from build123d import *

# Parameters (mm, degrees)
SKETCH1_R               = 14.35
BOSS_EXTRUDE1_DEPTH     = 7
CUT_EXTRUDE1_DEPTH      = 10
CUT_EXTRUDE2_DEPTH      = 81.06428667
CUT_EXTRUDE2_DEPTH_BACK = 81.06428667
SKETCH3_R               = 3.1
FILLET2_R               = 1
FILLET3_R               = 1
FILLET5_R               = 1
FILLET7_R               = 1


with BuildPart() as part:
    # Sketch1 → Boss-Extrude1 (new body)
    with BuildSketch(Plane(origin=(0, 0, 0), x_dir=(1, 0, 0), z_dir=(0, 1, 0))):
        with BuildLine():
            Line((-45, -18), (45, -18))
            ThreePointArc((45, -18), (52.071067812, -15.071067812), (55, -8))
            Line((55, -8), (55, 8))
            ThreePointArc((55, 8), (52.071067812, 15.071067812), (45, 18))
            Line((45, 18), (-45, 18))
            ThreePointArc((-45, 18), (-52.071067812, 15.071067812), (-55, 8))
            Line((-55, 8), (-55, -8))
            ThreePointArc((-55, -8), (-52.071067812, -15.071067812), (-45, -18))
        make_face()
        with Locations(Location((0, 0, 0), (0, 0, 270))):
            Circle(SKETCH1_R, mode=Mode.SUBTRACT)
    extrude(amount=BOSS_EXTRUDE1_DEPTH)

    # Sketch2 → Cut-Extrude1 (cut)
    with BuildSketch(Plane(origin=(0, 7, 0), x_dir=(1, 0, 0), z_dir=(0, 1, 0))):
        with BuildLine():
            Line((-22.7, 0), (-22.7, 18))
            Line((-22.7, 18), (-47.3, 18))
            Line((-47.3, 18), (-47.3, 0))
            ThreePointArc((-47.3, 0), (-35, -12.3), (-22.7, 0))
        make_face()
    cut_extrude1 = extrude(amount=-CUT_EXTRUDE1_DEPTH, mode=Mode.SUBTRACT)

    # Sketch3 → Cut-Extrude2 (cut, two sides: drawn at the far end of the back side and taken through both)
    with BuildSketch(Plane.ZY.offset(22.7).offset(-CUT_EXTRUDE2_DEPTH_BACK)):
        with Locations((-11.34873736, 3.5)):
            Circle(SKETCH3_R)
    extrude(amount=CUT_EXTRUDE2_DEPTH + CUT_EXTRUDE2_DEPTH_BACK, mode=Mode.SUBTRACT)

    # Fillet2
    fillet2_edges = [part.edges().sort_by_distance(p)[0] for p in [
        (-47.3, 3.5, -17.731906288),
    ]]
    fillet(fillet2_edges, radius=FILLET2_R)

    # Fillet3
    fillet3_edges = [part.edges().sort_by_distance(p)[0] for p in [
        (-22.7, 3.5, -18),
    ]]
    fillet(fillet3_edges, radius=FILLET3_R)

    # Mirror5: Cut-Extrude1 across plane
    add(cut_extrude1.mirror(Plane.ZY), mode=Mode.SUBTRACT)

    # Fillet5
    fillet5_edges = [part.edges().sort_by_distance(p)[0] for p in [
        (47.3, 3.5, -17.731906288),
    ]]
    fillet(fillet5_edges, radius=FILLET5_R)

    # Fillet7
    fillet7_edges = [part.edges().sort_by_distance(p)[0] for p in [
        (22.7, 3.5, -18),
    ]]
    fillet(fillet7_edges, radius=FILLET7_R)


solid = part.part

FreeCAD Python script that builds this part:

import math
import FreeCAD as App
import Part
import Sketcher


def edges_at(feature, points):
    """Names of the edges that pass closest to the given points."""
    edges = feature.Shape.Edges
    near = lambda p: min(range(len(edges)), key=lambda i: edges[i].distToShape(Part.Vertex(*p))[0])
    return sorted({f"Edge{near(p) + 1}" for p in points})

doc = App.newDocument("Part")
body = doc.addObject("PartDesign::Body", "Body")

sketch1 = body.newObject("Sketcher::SketchObject", "Sketch")
sketch1.AttachmentSupport = (doc.getObject("XZ_Plane"), [""])
sketch1.MapMode = "FlatFace"
sketch1.addGeometry(Part.LineSegment(App.Vector(-45, 18, 0), App.Vector(45, 18, 0)), False)
sketch1.addGeometry(Part.ArcOfCircle(Part.Circle(App.Vector(45, 8, 0), App.Vector(0, 0, 1), 10), math.radians(0), math.radians(90)), False)
sketch1.addGeometry(Part.LineSegment(App.Vector(55, 8, 0), App.Vector(55, -8, 0)), False)
sketch1.addGeometry(Part.ArcOfCircle(Part.Circle(App.Vector(45, -8, 0), App.Vector(0, 0, 1), 10), math.radians(-90), math.radians(0)), False)
sketch1.addGeometry(Part.LineSegment(App.Vector(45, -18, 0), App.Vector(-45, -18, 0)), False)
sketch1.addGeometry(Part.ArcOfCircle(Part.Circle(App.Vector(-45, -8, 0), App.Vector(0, 0, 1), 10), math.radians(180), math.radians(270)), False)
sketch1.addGeometry(Part.LineSegment(App.Vector(-55, -8, 0), App.Vector(-55, 8, 0)), False)
sketch1.addGeometry(Part.ArcOfCircle(Part.Circle(App.Vector(-45, 8, 0), App.Vector(0, 0, 1), 10), math.radians(90), math.radians(180)), False)
sketch1.addGeometry(Part.Circle(App.Vector(0, 0, 0), App.Vector(0, 0, 1), 14.35), False)
sketch1.addConstraint(Sketcher.Constraint("Tangent", 0, 2, 1, 2))
sketch1.addConstraint(Sketcher.Constraint("Tangent", 1, 1, 2, 1))
sketch1.addConstraint(Sketcher.Constraint("Tangent", 2, 2, 3, 2))
sketch1.addConstraint(Sketcher.Constraint("Tangent", 3, 1, 4, 1))
sketch1.addConstraint(Sketcher.Constraint("Tangent", 4, 2, 5, 2))
sketch1.addConstraint(Sketcher.Constraint("Tangent", 5, 1, 6, 1))
sketch1.addConstraint(Sketcher.Constraint("Tangent", 6, 2, 7, 2))
sketch1.addConstraint(Sketcher.Constraint("Tangent", 7, 1, 0, 1))
sketch1.addConstraint(Sketcher.Constraint("Horizontal", 0))
sketch1.addConstraint(Sketcher.Constraint("Vertical", 2))
sketch1.addConstraint(Sketcher.Constraint("Horizontal", 4))
sketch1.addConstraint(Sketcher.Constraint("Vertical", 6))
sketch1.addConstraint(Sketcher.Constraint("Coincident", 8, 3, -1, 1))
sketch1.addConstraint(Sketcher.Constraint("Equal", 1, 3))
sketch1.addConstraint(Sketcher.Constraint("Equal", 3, 5))
sketch1.addConstraint(Sketcher.Constraint("Equal", 5, 7))
sketch1.addConstraint(Sketcher.Constraint("Symmetric", 1, 3, 5, 3, -1, 1))
sketch1.addConstraint(Sketcher.Constraint("Radius", 1, 10.0))
sketch1.addConstraint(Sketcher.Constraint("Diameter", 8, 28.7))
sketch1.addConstraint(Sketcher.Constraint("DistanceX", 0, 1, 0, 2, 90.0))
sketch1.addConstraint(Sketcher.Constraint("DistanceY", 2, 2, 2, 1, 16.0))
pad1 = body.newObject("PartDesign::Pad", "Pad")
pad1.Profile = sketch1
pad1.Length = 7
pad1.Reversed = True

sketch2 = body.newObject("Sketcher::SketchObject", "Sketch001")
sketch2.AttachmentSupport = (doc.getObject("XZ_Plane"), [""])
sketch2.MapMode = "FlatFace"
sketch2.AttachmentOffset = App.Placement(App.Vector(0, 0, -7), App.Rotation())
sketch2.addGeometry(Part.LineSegment(App.Vector(-22.7, 0, 0), App.Vector(-22.7, -18, 0)), False)
sketch2.addGeometry(Part.LineSegment(App.Vector(-22.7, -18, 0), App.Vector(-47.3, -18, 0)), False)
sketch2.addGeometry(Part.LineSegment(App.Vector(-47.3, -18, 0), App.Vector(-47.3, 0, 0)), False)
sketch2.addGeometry(Part.ArcOfCircle(Part.Circle(App.Vector(-35, 0, 0), App.Vector(0, 0, 1), 12.3), math.radians(0), math.radians(180)), False)
sketch2.addConstraint(Sketcher.Constraint("Coincident", 0, 2, 1, 1))
sketch2.addConstraint(Sketcher.Constraint("Coincident", 1, 2, 2, 1))
sketch2.addConstraint(Sketcher.Constraint("Tangent", 2, 2, 3, 2))
sketch2.addConstraint(Sketcher.Constraint("Tangent", 3, 1, 0, 1))
sketch2.addConstraint(Sketcher.Constraint("Vertical", 0))
sketch2.addConstraint(Sketcher.Constraint("Horizontal", 1))
sketch2.addConstraint(Sketcher.Constraint("Vertical", 2))
sketch2.addConstraint(Sketcher.Constraint("PointOnObject", 3, 3, -1))
sketch2.addConstraint(Sketcher.Constraint("Radius", 3, 12.3))
sketch2.addConstraint(Sketcher.Constraint("DistanceY", 0, 2, 0, 1, 18.0))
sketch2.addConstraint(Sketcher.Constraint("DistanceX", 3, 3, -1, 1, 35.0))
pocket1 = body.newObject("PartDesign::Pocket", "Pocket")
pocket1.Profile = sketch2
pocket1.Length = 10
pocket1.Reversed = True

sketch3 = body.newObject("Sketcher::SketchObject", "Sketch002")
sketch3.AttachmentSupport = (doc.getObject("YZ_Plane"), [""])
sketch3.MapMode = "FlatFace"
sketch3.AttachmentOffset = App.Placement(App.Vector(0, 0, -22.7), App.Rotation())
sketch3.addGeometry(Part.Circle(App.Vector(3.5, -11.348737, 0), App.Vector(0, 0, 1), 3.1), False)
sketch3.addConstraint(Sketcher.Constraint("Diameter", 0, 6.2))
sketch3.addConstraint(Sketcher.Constraint("DistanceX", -1, 1, 0, 3, 3.5))
sketch3.addConstraint(Sketcher.Constraint("DistanceY", 0, 3, -1, 1, 11.348737))
pocket2 = body.newObject("PartDesign::Pocket", "Pocket001")
pocket2.Profile = sketch3
pocket2.Type = "ThroughAll"
pocket2.Midplane = True
doc.recompute()

fillet = body.newObject("PartDesign::Fillet", "Fillet")
fillet.Base = (pocket2, edges_at(pocket2, [(-47.3, 3.5, -17.732)]))
fillet.Radius = 1
doc.recompute()

fillet2 = body.newObject("PartDesign::Fillet", "Fillet001")
fillet2.Base = (fillet, edges_at(fillet, [(-22.7, 3.5, -18)]))
fillet2.Radius = 1
doc.recompute()

mirrored = body.newObject("PartDesign::Mirrored", "Mirrored")
mirrored.Originals = [pocket1]
mirrored.MirrorPlane = (doc.getObject("YZ_Plane"), [""])
body.Tip = mirrored
doc.recompute()

fillet3 = body.newObject("PartDesign::Fillet", "Fillet002")
fillet3.Base = (mirrored, edges_at(mirrored, [(47.3, 3.5, -17.732)]))
fillet3.Radius = 1
doc.recompute()

fillet4 = body.newObject("PartDesign::Fillet", "Fillet003")
fillet4.Base = (fillet3, edges_at(fillet3, [(22.7, 3.5, -18)]))
fillet4.Radius = 1

doc.recompute()
